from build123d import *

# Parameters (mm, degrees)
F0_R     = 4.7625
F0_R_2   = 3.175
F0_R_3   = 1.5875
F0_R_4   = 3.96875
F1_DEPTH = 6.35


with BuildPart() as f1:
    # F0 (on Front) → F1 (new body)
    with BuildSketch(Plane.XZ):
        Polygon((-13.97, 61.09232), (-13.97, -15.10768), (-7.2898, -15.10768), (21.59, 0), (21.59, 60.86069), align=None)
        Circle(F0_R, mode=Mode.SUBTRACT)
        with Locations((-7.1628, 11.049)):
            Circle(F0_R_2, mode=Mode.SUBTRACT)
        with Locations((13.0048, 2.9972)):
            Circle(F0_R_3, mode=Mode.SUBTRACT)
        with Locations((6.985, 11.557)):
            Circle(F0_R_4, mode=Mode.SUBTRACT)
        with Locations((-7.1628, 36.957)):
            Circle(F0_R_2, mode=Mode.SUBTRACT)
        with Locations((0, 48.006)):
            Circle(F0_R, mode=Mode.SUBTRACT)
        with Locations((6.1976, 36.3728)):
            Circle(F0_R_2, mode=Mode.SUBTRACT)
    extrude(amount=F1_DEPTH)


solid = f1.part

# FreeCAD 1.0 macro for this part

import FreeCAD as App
import Part
import Sketcher
from FreeCAD import Vector
Q = App.Units.Quantity


def add_polygon(sketch, points):
    """Adds a closed chain of lines whose ends are joined by coincident constraints."""
    first, n = sketch.GeometryCount, len(points)
    for a, b in zip(points, points[1:] + points[:1]):
        sketch.addGeometry(Part.LineSegment(App.Vector(*a, 0), App.Vector(*b, 0)), False)
    for i in range(n):
        sketch.addConstraint(Sketcher.Constraint("Coincident", first + i, 2, first + (i + 1) % n, 1))

doc = App.newDocument("Part")
body = doc.addObject("PartDesign::Body", "Body")

sketch1 = doc.addObject("Sketcher::SketchObject", "Sketch")
body.addObject(sketch1)
sketch1.AttachmentSupport = (doc.XZ_Plane, [""])
sketch1.MapMode = "FlatFace"
add_polygon(sketch1, [(-13.97, 61.09232), (-13.97, -15.10768), (-7.2898, -15.10768), (21.59, 0), (21.59, 60.86069)])
sketch1.addGeometry(Part.Circle(Vector(0, 0, 0), Vector(0, 0, 1), 4.7625), False)
sketch1.addGeometry(Part.Circle(Vector(-7.1628, 11.049, 0), Vector(0, 0, 1), 3.175), False)
sketch1.addGeometry(Part.Circle(Vector(13.0048, 2.9972, 0), Vector(0, 0, 1), 1.5875), False)
sketch1.addGeometry(Part.Circle(Vector(6.985, 11.557, 0), Vector(0, 0, 1), 3.96875), False)
sketch1.addGeometry(Part.Circle(Vector(-7.1628, 36.957, 0), Vector(0, 0, 1), 3.175), False)
sketch1.addGeometry(Part.Circle(Vector(0, 48.006, 0), Vector(0, 0, 1), 4.7625), False)
sketch1.addGeometry(Part.Circle(Vector(6.1976, 36.3728, 0), Vector(0, 0, 1), 3.175), False)
sketch1.addConstraint([
    Sketcher.Constraint("Vertical", 0),
    Sketcher.Constraint("Horizontal", 1),
    Sketcher.Constraint("Vertical", 3),
    Sketcher.Constraint("Coincident", 5, 3, -1, 1),
    Sketcher.Constraint("Equal", 6, 9),
    Sketcher.Constraint("Equal", 5, 10),
    Sketcher.Constraint("Equal", 9, 11),
    Sketcher.Constraint("PointOnObject", 10, 3, -2),
    Sketcher.Constraint("PointOnObject", 2, 2, -1),
    Sketcher.Constraint("Vertical", 6, 3, 9, 3),
    Sketcher.Constraint("Diameter", 6, Q("0.25 in")),
    Sketcher.Constraint("DistanceY", 0, 2, 0, 1, Q("3 in")),
    Sketcher.Constraint("Diameter", 5, Q("0.375 in")),
    Sketcher.Constraint("Diameter", 7, Q("0.125 in")),
    Sketcher.Constraint("Diameter", 8, Q("0.3125 in")),
    Sketcher.Constraint("DistanceY", 8, 3, 9, 3, Q("1 in")),
    Sketcher.Constraint("DistanceX", 4, 2, 3, 2, Q("1.4 in")),
    Sketcher.Constraint("DistanceX", 1, 1, 1, 2, Q("0.263 in")),
    Sketcher.Constraint("DistanceY", -1, 1, 10, 3, Q("1.89 in")),
    Sketcher.Constraint("DistanceX", 0, 2, -1, 1, Q("0.55 in")),
    Sketcher.Constraint("DistanceY", 6, 3, 8, 3, Q("0.02 in")),
    Sketcher.Constraint("DistanceX", 6, 3, -1, 1, Q("0.282 in")),
    Sketcher.Constraint("DistanceY", -1, 1, 6, 3, Q("0.435 in")),
    Sketcher.Constraint("DistanceX", -1, 1, 7, 3, Q("0.512 in")),
    Sketcher.Constraint("DistanceY", -1, 1, 7, 3, Q("0.118 in")),
    Sketcher.Constraint("DistanceX", -1, 1, 8, 3, Q("0.275 in")),
    Sketcher.Constraint("DistanceX", -1, 1, 11, 3, Q("0.244 in")),
    Sketcher.Constraint("DistanceY", -1, 1, 11, 3, Q("1.432 in")),
    Sketcher.Constraint("DistanceY", 3, 1, 3, 2, Q("60.86069 mm")),
    Sketcher.Constraint("Distance", 2, Q("32.592712 mm")),
])
pad1 = doc.addObject("PartDesign::Pad", "Pad")
body.addObject(pad1)
pad1.Profile = sketch1
pad1.Length = Q("0.25 in")

doc.recompute()
